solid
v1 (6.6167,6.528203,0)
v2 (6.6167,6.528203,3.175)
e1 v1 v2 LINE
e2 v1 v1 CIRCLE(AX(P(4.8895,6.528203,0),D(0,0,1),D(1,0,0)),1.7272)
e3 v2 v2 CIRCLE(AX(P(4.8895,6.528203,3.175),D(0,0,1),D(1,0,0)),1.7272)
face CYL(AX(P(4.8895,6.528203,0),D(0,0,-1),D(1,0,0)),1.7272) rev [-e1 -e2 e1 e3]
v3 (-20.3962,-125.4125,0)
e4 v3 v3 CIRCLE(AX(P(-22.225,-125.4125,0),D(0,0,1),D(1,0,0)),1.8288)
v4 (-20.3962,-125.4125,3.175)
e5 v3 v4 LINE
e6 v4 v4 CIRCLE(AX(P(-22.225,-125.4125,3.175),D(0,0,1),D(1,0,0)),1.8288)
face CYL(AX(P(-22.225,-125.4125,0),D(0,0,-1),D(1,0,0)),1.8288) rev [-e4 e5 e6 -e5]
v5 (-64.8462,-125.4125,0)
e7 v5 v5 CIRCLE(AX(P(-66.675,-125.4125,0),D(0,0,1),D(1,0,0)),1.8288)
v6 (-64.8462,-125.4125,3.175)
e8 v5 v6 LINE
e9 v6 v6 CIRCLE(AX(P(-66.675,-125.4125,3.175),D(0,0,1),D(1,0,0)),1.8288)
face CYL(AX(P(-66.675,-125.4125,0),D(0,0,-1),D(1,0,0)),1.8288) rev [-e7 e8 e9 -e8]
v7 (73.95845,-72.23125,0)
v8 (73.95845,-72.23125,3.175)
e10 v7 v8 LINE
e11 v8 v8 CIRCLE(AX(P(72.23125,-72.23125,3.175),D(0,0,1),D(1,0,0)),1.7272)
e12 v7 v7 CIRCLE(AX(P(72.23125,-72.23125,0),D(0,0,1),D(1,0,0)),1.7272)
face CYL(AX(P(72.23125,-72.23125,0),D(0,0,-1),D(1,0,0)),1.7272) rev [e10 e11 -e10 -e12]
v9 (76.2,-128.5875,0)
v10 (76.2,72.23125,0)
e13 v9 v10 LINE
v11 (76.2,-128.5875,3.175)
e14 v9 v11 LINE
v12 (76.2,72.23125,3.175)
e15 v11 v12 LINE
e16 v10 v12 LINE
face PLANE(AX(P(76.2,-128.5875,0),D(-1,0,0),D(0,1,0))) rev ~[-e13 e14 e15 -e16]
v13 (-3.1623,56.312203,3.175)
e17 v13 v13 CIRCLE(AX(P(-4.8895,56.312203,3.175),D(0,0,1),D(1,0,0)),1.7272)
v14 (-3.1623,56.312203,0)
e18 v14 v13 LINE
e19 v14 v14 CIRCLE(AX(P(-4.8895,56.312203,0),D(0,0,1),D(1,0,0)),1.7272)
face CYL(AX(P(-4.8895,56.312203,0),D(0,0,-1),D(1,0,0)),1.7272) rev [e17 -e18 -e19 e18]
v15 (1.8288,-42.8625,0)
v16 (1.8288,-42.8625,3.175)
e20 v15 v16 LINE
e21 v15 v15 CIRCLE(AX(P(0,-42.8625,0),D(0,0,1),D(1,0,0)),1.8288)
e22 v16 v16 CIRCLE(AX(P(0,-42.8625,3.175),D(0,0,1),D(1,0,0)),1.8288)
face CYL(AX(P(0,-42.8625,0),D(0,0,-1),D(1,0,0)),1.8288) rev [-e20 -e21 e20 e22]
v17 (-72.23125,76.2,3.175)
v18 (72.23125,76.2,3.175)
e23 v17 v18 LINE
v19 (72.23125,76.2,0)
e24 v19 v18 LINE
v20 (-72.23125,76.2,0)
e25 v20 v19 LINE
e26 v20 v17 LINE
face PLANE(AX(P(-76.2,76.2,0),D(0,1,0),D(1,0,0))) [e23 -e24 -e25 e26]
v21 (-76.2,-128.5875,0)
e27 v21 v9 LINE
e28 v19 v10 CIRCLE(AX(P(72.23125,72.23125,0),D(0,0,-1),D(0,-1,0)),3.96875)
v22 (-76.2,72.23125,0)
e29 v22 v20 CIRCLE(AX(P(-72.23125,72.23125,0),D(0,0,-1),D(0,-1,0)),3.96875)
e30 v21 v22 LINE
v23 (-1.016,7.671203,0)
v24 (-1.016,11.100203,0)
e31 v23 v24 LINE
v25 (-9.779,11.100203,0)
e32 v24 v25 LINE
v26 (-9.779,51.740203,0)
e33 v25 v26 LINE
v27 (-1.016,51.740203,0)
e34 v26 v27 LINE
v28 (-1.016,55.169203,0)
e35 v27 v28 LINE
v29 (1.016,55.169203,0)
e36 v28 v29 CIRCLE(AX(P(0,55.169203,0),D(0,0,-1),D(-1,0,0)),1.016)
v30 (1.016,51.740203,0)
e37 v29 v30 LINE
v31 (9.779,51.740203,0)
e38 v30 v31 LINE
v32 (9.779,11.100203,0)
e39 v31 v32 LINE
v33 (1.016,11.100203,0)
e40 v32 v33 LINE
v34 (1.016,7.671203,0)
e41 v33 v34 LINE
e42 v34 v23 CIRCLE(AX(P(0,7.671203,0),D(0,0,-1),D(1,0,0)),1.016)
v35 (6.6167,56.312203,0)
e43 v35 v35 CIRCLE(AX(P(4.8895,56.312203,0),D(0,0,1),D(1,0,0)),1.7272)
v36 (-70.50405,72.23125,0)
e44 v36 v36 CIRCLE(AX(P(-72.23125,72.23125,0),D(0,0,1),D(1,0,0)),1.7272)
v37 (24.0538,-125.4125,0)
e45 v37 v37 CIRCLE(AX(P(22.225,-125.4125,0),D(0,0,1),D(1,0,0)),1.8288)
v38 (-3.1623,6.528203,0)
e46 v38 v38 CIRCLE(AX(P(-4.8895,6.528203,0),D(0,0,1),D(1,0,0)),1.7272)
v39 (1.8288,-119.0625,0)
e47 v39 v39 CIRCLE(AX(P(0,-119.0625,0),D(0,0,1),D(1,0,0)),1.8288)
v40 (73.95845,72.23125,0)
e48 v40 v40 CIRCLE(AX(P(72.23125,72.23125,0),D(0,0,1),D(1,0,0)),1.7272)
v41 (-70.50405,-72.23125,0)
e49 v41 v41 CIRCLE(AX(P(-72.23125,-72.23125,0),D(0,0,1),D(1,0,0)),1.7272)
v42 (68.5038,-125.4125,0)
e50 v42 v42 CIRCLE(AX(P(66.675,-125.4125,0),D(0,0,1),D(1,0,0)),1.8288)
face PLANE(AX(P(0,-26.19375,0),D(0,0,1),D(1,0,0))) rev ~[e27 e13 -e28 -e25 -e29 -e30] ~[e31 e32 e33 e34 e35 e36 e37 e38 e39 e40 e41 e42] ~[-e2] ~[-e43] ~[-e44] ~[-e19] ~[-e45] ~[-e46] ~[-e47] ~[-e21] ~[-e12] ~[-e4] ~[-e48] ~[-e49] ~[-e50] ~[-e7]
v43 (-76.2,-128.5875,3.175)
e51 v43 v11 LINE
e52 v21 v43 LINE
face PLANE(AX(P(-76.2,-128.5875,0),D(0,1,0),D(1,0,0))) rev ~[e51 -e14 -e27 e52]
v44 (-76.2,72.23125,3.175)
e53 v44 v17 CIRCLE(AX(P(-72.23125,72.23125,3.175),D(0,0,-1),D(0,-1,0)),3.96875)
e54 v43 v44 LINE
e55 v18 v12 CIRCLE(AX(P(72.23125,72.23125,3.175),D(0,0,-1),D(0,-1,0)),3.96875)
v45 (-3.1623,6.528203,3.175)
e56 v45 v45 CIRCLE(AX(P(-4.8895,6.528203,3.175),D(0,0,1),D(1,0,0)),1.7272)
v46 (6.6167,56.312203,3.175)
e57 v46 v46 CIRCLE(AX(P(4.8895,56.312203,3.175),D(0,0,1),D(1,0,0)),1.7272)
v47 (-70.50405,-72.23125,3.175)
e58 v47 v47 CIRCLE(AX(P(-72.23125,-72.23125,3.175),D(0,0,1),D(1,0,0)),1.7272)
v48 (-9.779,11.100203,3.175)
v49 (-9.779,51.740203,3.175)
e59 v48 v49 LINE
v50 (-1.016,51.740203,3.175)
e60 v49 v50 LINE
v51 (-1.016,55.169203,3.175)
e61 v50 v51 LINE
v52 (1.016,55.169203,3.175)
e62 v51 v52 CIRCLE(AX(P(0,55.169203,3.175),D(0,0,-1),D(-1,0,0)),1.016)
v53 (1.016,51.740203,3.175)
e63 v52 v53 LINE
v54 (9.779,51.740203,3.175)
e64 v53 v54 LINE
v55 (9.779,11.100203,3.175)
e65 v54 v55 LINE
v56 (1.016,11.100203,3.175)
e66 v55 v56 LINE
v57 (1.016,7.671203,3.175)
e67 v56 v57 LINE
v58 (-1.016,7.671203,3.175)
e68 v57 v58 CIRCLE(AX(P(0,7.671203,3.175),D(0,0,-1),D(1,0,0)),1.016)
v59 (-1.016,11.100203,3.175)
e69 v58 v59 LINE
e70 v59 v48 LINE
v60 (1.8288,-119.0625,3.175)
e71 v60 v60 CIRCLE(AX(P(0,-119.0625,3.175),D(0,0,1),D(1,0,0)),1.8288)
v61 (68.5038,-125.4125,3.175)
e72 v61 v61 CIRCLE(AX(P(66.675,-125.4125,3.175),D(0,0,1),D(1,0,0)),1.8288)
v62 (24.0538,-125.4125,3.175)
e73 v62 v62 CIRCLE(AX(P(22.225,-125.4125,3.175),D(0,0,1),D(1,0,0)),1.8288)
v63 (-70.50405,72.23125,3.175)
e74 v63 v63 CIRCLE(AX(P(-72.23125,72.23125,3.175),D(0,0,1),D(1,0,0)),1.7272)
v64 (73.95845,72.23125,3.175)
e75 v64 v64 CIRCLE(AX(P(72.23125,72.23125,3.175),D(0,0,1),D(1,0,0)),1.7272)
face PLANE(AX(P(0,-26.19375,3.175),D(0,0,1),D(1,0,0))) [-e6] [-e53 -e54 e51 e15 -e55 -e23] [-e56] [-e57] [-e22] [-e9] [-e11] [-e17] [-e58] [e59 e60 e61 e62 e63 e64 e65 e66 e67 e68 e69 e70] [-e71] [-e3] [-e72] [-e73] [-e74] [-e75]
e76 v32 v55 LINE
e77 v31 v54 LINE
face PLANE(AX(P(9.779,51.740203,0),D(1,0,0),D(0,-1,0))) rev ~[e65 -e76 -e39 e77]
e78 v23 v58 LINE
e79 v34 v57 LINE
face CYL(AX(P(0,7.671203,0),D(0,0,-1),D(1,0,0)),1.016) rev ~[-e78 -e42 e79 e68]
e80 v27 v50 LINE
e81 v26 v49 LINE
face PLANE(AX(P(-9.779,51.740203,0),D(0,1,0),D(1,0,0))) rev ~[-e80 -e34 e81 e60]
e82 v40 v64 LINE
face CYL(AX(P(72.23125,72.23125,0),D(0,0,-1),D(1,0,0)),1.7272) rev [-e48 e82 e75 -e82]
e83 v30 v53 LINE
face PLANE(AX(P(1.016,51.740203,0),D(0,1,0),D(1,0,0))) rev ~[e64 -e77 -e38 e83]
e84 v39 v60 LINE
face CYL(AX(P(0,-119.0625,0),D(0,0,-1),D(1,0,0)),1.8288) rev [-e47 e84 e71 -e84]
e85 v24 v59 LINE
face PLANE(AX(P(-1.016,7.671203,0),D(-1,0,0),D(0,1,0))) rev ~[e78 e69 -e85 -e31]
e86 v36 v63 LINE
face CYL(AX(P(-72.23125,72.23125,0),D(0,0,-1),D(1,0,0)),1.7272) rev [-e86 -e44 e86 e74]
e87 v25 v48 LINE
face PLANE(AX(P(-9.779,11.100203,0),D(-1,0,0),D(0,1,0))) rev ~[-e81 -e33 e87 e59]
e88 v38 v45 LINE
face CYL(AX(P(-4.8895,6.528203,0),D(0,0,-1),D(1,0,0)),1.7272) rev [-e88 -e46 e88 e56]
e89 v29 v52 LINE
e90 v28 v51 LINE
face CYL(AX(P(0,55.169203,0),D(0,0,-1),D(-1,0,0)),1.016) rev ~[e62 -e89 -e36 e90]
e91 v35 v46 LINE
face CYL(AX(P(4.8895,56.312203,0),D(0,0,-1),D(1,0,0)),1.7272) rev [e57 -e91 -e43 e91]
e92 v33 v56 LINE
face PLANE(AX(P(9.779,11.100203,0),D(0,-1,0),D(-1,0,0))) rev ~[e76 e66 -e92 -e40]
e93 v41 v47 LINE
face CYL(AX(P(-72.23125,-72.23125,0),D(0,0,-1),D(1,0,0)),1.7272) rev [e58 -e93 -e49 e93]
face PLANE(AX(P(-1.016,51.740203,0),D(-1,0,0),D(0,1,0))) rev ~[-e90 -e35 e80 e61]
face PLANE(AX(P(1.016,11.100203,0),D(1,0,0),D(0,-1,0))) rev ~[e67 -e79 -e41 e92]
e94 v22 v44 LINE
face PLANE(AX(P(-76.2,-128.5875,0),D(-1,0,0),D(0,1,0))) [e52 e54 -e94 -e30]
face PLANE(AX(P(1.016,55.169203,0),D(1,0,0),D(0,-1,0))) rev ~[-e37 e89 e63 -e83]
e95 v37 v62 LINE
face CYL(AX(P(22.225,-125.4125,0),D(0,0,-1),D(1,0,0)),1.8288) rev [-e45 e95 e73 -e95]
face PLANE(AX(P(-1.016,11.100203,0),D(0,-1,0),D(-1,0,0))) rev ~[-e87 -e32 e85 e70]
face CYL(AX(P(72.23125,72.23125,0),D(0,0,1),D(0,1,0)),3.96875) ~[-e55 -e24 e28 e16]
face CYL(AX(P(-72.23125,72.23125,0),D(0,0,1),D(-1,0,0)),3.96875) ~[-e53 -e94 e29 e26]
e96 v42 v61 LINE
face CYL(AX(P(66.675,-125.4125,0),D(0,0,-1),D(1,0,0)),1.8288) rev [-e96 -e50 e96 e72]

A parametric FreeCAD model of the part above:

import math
import FreeCAD as App
import Part
import Sketcher
Q = App.Units.Quantity


def edges_at(feature, points):
    """Names of the edges that pass closest to the given points."""
    edges = feature.Shape.Edges
    near = lambda p: min(range(len(edges)), key=lambda i: edges[i].distToShape(Part.Vertex(*p))[0])
    return sorted({f"Edge{near(p) + 1}" for p in points})

doc = App.newDocument("Part")
body = doc.addObject("PartDesign::Body", "Body")

# Sketch on XY plane
sketch1 = body.newObject("Sketcher::SketchObject", "Sketch")
sketch1.AttachmentSupport = (doc.getObject("XY_Plane"), [""])
sketch1.MapMode = "FlatFace"
sketch1.addGeometry(Part.LineSegment(App.Vector(-76.2, 76.2, 0), App.Vector(-76.2, -128.5875, 0)), False)
sketch1.addGeometry(Part.LineSegment(App.Vector(-76.2, -128.5875, 0), App.Vector(76.2, -128.5875, 0)), False)
sketch1.addGeometry(Part.LineSegment(App.Vector(76.2, -128.5875, 0), App.Vector(76.2, 76.2, 0)), False)
sketch1.addGeometry(Part.LineSegment(App.Vector(76.2, 76.2, 0), App.Vector(-76.2, 76.2, 0)), False)
sketch1.addGeometry(Part.Circle(App.Vector(-66.675, -125.4125, 0), App.Vector(0, 0, 1), 1.8288), False)
sketch1.addGeometry(Part.Circle(App.Vector(-22.225, -125.4125, 0), App.Vector(0, 0, 1), 1.8288), False)
sketch1.addGeometry(Part.Circle(App.Vector(-72.23125, -72.23125, 0), App.Vector(0, 0, 1), 1.7272), False)
sketch1.addGeometry(Part.Circle(App.Vector(0, -119.0625, 0), App.Vector(0, 0, 1), 1.8288), False)
sketch1.addGeometry(Part.Circle(App.Vector(22.225, -125.4125, 0), App.Vector(0, 0, 1), 1.8288), False)
sketch1.addGeometry(Part.Circle(App.Vector(66.675, -125.4125, 0), App.Vector(0, 0, 1), 1.8288), False)
sketch1.addGeometry(Part.Circle(App.Vector(0, -42.8625, 0), App.Vector(0, 0, 1), 1.8288), False)
sketch1.addGeometry(Part.Circle(App.Vector(72.23125, -72.23125, 0), App.Vector(0, 0, 1), 1.7272), False)
sketch1.addGeometry(Part.Circle(App.Vector(-4.8895, 6.528203, 0), App.Vector(0, 0, 1), 1.7272), False)
sketch1.addGeometry(Part.Circle(App.Vector(-72.23125, 72.23125, 0), App.Vector(0, 0, 1), 1.7272), False)
sketch1.addGeometry(Part.Circle(App.Vector(-4.8895, 56.312203, 0), App.Vector(0, 0, 1), 1.7272), False)
sketch1.addGeometry(Part.Circle(App.Vector(4.8895, 6.528203, 0), App.Vector(0, 0, 1), 1.7272), False)
sketch1.addGeometry(Part.ArcOfCircle(Part.Circle(App.Vector(0, 55.169203, 0), App.Vector(0, 0, 1), 1.016), math.radians(0), math.radians(180)), False)
sketch1.addGeometry(Part.LineSegment(App.Vector(1.016, 55.169203, 0), App.Vector(1.016, 51.740203, 0)), False)
sketch1.addGeometry(Part.LineSegment(App.Vector(1.016, 51.740203, 0), App.Vector(9.779, 51.740203, 0)), False)
sketch1.addGeometry(Part.LineSegment(App.Vector(9.779, 51.740203, 0), App.Vector(9.779, 11.100203, 0)), False)
sketch1.addGeometry(Part.LineSegment(App.Vector(9.779, 11.100203, 0), App.Vector(1.016, 11.100203, 0)), False)
sketch1.addGeometry(Part.LineSegment(App.Vector(1.016, 11.100203, 0), App.Vector(1.016, 7.671203, 0)), False)
sketch1.addGeometry(Part.ArcOfCircle(Part.Circle(App.Vector(0, 7.671203, 0), App.Vector(0, 0, 1), 1.016), math.radians(180), math.radians(360)), False)
sketch1.addGeometry(Part.LineSegment(App.Vector(-1.016, 7.671203, 0), App.Vector(-1.016, 11.100203, 0)), False)
sketch1.addGeometry(Part.LineSegment(App.Vector(-1.016, 11.100203, 0), App.Vector(-9.779, 11.100203, 0)), False)
sketch1.addGeometry(Part.LineSegment(App.Vector(-9.779, 11.100203, 0), App.Vector(-9.779, 51.740203, 0)), False)
sketch1.addGeometry(Part.LineSegment(App.Vector(-9.779, 51.740203, 0), App.Vector(-1.016, 51.740203, 0)), False)
sketch1.addGeometry(Part.LineSegment(App.Vector(-1.016, 51.740203, 0), App.Vector(-1.016, 55.169203, 0)), False)
sketch1.addGeometry(Part.Circle(App.Vector(4.8895, 56.312203, 0), App.Vector(0, 0, 1), 1.7272), False)
sketch1.addGeometry(Part.Circle(App.Vector(72.23125, 72.23125, 0), App.Vector(0, 0, 1), 1.7272), False)
sketch1.addConstraint(Sketcher.Constraint("Coincident", 0, 2, 1, 1))
sketch1.addConstraint(Sketcher.Constraint("Coincident", 1, 2, 2, 1))
sketch1.addConstraint(Sketcher.Constraint("Coincident", 2, 2, 3, 1))
sketch1.addConstraint(Sketcher.Constraint("Coincident", 3, 2, 0, 1))
sketch1.addConstraint(Sketcher.Constraint("Tangent", 16, 1, 17, 1))
sketch1.addConstraint(Sketcher.Constraint("Coincident", 17, 2, 18, 1))
sketch1.addConstraint(Sketcher.Constraint("Coincident", 18, 2, 19, 1))
sketch1.addConstraint(Sketcher.Constraint("Coincident", 19, 2, 20, 1))
sketch1.addConstraint(Sketcher.Constraint("Coincident", 20, 2, 21, 1))
sketch1.addConstraint(Sketcher.Constraint("Tangent", 21, 2, 22, 2))
sketch1.addConstraint(Sketcher.Constraint("Tangent", 22, 1, 23, 1))
sketch1.addConstraint(Sketcher.Constraint("Coincident", 23, 2, 24, 1))
sketch1.addConstraint(Sketcher.Constraint("Coincident", 24, 2, 25, 1))
sketch1.addConstraint(Sketcher.Constraint("Coincident", 25, 2, 26, 1))
sketch1.addConstraint(Sketcher.Constraint("Coincident", 26, 2, 27, 1))
sketch1.addConstraint(Sketcher.Constraint("Tangent", 27, 2, 16, 2))
sketch1.addConstraint(Sketcher.Constraint("Vertical", 0))
sketch1.addConstraint(Sketcher.Constraint("Horizontal", 1))
sketch1.addConstraint(Sketcher.Constraint("Vertical", 2))
sketch1.addConstraint(Sketcher.Constraint("Horizontal", 3))
sketch1.addConstraint(Sketcher.Constraint("Vertical", 17))
sketch1.addConstraint(Sketcher.Constraint("Horizontal", 18))
sketch1.addConstraint(Sketcher.Constraint("Vertical", 19))
sketch1.addConstraint(Sketcher.Constraint("Horizontal", 20))
sketch1.addConstraint(Sketcher.Constraint("Vertical", 21))
sketch1.addConstraint(Sketcher.Constraint("Vertical", 23))
sketch1.addConstraint(Sketcher.Constraint("Horizontal", 24))
sketch1.addConstraint(Sketcher.Constraint("Vertical", 25))
sketch1.addConstraint(Sketcher.Constraint("Horizontal", 26))
sketch1.addConstraint(Sketcher.Constraint("Vertical", 27))
sketch1.addConstraint(Sketcher.Constraint("Equal", 4, 5))
sketch1.addConstraint(Sketcher.Constraint("Equal", 5, 7))
sketch1.addConstraint(Sketcher.Constraint("Equal", 7, 8))
sketch1.addConstraint(Sketcher.Constraint("Equal", 8, 9))
sketch1.addConstraint(Sketcher.Constraint("Equal", 9, 10))
sketch1.addConstraint(Sketcher.Constraint("Equal", 6, 11))
sketch1.addConstraint(Sketcher.Constraint("Equal", 11, 12))
sketch1.addConstraint(Sketcher.Constraint("Equal", 12, 13))
sketch1.addConstraint(Sketcher.Constraint("Equal", 13, 14))
sketch1.addConstraint(Sketcher.Constraint("Equal", 14, 15))
sketch1.addConstraint(Sketcher.Constraint("Equal", 16, 22))
sketch1.addConstraint(Sketcher.Constraint("Equal", 15, 28))
sketch1.addConstraint(Sketcher.Constraint("Equal", 28, 29))
sketch1.addConstraint(Sketcher.Constraint("Symmetric", 11, 3, 13, 3, -1, 1))
sketch1.addConstraint(Sketcher.Constraint("Symmetric", 6, 3, 29, 3, -1, 1))
sketch1.addConstraint(Sketcher.Constraint("Symmetric", 5, 3, 8, 3, -2))
sketch1.addConstraint(Sketcher.Constraint("Symmetric", 4, 3, 9, 3, -2))
sketch1.addConstraint(Sketcher.Constraint("Symmetric", 6, 3, 11, 3, -2))
sketch1.addConstraint(Sketcher.Constraint("Symmetric", 12, 3, 15, 3, -2))
sketch1.addConstraint(Sketcher.Constraint("Symmetric", 14, 3, 28, 3, -2))
sketch1.addConstraint(Sketcher.Constraint("Symmetric", 20, 2, 23, 2, -2))
sketch1.addConstraint(Sketcher.Constraint("Symmetric", 18, 2, 25, 2, -2))
sketch1.addConstraint(Sketcher.Constraint("PointOnObject", 7, 3, -2))
sketch1.addConstraint(Sketcher.Constraint("PointOnObject", 10, 3, -2))
sketch1.addConstraint(Sketcher.Constraint("PointOnObject", 16, 3, -2))
sketch1.addConstraint(Sketcher.Constraint("Horizontal", 4, 3, 5, 3))
sketch1.addConstraint(Sketcher.Constraint("Vertical", 12, 3, 14, 3))
sketch1.addConstraint(Sketcher.Constraint("Equal", 17, 21))
sketch1.addConstraint(Sketcher.Constraint("DistanceX", 1, 1, 1, 2, Q("6 in")))
sketch1.addConstraint(Sketcher.Constraint("Radius", 16, Q("0.04 in")))
sketch1.addConstraint(Sketcher.Constraint("Diameter", 4, Q("0.144 in")))
sketch1.addConstraint(Sketcher.Constraint("Diameter", 6, Q("0.136 in")))
sketch1.addConstraint(Sketcher.Constraint("DistanceY", 19, 2, 19, 1, Q("1.6 in")))
sketch1.addConstraint(Sketcher.Constraint("DistanceX", 0, 2, -1, 1, Q("3 in")))
sketch1.addConstraint(Sketcher.Constraint("DistanceY", -1, 1, 2, 2, Q("3 in")))
sketch1.addConstraint(Sketcher.Constraint("DistanceY", 7, 3, 10, 3, Q("3 in")))
sketch1.addConstraint(Sketcher.Constraint("DistanceX", 4, 3, 8, 3, Q("3.5 in")))
sketch1.addConstraint(Sketcher.Constraint("DistanceX", 18, 1, 18, 2, Q("0.345 in")))
sketch1.addConstraint(Sketcher.Constraint("DistanceY", 0, 2, 0, 1, Q("8.0625 in")))
sketch1.addConstraint(Sketcher.Constraint("DistanceY", 17, 2, 17, 1, Q("0.135 in")))
sketch1.addConstraint(Sketcher.Constraint("DistanceX", 4, 3, 5, 3, Q("1.75 in")))
sketch1.addConstraint(Sketcher.Constraint("DistanceY", 5, 3, 7, 3, Q("0.25 in")))
sketch1.addConstraint(Sketcher.Constraint("DistanceY", 12, 3, 14, 3, Q("1.96 in")))
sketch1.addConstraint(Sketcher.Constraint("DistanceY", 17, 2, 28, 3, Q("0.18 in")))
sketch1.addConstraint(Sketcher.Constraint("DistanceY", 4, 3, -1, 1, Q("4.9375 in")))
sketch1.addConstraint(Sketcher.Constraint("DistanceX", 6, 3, -1, 1, Q("2.84375 in")))
sketch1.addConstraint(Sketcher.Constraint("DistanceY", 6, 3, -1, 1, Q("2.84375 in")))
sketch1.addConstraint(Sketcher.Constraint("DistanceX", 12, 3, 15, 3, Q("0.385 in")))
sketch1.addConstraint(Sketcher.Constraint("DistanceY", -1, 1, 12, 3, 6.528203))
pad1 = body.newObject("PartDesign::Pad", "Pad")
pad1.Profile = sketch1
pad1.Length = Q("0.125 in")
doc.recompute()

fillet = body.newObject("PartDesign::Fillet", "Fillet")
fillet.Base = (pad1, edges_at(pad1, [(-76.2, 76.2, 1.587), (76.2, 76.2, 1.587)]))
fillet.Radius = Q("0.15625 in")

doc.recompute()
